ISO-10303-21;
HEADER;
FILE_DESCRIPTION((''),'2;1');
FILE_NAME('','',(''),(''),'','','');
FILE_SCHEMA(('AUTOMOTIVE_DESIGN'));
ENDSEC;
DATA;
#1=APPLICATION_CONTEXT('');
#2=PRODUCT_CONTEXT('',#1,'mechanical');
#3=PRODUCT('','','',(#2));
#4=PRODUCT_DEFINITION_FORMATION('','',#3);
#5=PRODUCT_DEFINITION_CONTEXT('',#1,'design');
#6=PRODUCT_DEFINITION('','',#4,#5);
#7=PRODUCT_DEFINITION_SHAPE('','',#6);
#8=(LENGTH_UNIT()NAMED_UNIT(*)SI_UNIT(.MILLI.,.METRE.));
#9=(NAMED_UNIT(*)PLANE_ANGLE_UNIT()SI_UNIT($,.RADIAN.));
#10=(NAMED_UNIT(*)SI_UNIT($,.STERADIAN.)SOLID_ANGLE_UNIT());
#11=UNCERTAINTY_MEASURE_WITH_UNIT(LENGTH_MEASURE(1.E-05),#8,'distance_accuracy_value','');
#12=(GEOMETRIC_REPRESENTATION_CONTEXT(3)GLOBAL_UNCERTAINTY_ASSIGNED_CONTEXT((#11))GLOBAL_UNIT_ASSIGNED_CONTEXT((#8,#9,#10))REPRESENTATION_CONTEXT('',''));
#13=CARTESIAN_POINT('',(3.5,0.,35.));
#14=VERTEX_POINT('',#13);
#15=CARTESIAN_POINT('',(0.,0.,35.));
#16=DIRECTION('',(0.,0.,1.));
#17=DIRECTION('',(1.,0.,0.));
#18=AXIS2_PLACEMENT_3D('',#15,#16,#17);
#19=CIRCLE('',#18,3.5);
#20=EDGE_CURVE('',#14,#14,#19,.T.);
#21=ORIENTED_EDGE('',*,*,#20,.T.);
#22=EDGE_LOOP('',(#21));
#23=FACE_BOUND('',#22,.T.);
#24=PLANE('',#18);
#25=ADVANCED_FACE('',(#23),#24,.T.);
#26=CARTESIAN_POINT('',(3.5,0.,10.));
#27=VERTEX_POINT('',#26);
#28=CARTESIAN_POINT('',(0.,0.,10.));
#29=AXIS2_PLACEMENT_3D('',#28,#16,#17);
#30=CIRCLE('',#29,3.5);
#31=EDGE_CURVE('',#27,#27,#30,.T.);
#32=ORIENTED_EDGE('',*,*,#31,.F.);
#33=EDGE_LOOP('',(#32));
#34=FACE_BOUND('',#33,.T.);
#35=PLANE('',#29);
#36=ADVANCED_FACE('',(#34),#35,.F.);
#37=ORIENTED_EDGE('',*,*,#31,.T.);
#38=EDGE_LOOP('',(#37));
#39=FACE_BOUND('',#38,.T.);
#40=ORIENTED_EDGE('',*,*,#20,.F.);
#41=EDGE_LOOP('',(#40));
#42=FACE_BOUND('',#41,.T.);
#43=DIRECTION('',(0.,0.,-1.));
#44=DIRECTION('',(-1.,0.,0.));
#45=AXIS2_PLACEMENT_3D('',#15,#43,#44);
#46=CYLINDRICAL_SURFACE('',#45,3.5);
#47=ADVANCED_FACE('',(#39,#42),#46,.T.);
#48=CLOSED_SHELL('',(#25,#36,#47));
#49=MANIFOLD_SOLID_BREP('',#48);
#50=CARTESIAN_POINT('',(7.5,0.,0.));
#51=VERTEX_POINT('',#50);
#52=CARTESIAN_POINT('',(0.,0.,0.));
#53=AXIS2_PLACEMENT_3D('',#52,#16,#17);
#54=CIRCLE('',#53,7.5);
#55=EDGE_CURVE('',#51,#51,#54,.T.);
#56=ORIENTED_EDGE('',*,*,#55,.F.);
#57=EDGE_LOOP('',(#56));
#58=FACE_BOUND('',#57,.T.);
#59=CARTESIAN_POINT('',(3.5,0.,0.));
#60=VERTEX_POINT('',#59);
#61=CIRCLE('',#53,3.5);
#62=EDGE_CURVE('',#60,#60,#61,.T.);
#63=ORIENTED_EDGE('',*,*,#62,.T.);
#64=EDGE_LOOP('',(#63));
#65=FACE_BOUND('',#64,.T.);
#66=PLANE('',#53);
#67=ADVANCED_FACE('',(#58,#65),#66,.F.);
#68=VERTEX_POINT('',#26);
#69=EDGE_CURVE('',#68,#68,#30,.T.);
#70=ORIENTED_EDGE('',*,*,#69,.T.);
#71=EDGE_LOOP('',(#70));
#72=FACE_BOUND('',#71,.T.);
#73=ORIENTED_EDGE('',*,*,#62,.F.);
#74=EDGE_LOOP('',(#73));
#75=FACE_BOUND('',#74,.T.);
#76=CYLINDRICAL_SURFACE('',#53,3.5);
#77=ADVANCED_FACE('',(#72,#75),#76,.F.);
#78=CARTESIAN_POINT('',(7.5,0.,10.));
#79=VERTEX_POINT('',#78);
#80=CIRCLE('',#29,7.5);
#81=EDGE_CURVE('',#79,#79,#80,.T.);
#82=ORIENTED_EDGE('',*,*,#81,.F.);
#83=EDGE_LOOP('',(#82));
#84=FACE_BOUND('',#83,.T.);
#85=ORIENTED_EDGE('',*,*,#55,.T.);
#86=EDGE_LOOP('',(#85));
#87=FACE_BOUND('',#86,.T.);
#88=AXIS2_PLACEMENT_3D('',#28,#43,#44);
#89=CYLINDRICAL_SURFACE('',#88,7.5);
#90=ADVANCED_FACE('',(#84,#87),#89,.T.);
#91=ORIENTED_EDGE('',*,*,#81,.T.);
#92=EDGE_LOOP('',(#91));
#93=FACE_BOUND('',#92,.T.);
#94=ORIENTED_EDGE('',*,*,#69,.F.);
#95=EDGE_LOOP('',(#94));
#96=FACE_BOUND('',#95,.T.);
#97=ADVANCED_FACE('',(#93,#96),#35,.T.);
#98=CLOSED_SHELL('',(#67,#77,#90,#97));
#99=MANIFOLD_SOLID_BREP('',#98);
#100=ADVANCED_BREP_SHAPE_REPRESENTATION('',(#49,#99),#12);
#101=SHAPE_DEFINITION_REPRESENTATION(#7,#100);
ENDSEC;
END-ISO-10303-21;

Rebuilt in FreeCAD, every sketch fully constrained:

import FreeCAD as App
import Part
import Sketcher
from FreeCAD import Vector
Q = App.Units.Quantity

doc = App.newDocument("Part")
params = doc.addObject("Spreadsheet::Sheet", "Params")
for row, (alias, value) in enumerate([
    ("sketch1_diameter", "15 mm"),
    ("pad1_length", "10 mm"),
    ("sketch2_diameter", "7 mm"),
    ("pocket1_length", "10 mm"),
    ("sketch3_diameter", "7 mm"),
    ("pad2_length", "25 mm"),
], start=1):
    params.set(f"A{row}", alias)
    params.set(f"B{row}", "=" + value)
    params.setAlias(f"B{row}", alias)

body = doc.addObject("PartDesign::Body", "Body")

sketch1 = body.newObject("Sketcher::SketchObject", "Sketch")
sketch1.AttachmentSupport = (doc.getObject("XY_Plane"), [""])
sketch1.MapMode = "FlatFace"
sketch1.addGeometry(Part.Circle(Vector(0, 0, 0), Vector(0, 0, 1), 7.5), False)
sketch1.addConstraint(Sketcher.Constraint("Coincident", 0, 3, -1, 1))
sketch1.addConstraint(Sketcher.Constraint("Diameter", 0, Q("15 mm")))
sketch1.setExpression("Constraints[1]", "Params.sketch1_diameter")
pad1 = body.newObject("PartDesign::Pad", "Pad")
pad1.Profile = sketch1
pad1.setExpression("Length", "Params.pad1_length")

sketch2 = body.newObject("Sketcher::SketchObject", "Sketch001")
sketch2.AttachmentSupport = (doc.getObject("XY_Plane"), [""])
sketch2.MapMode = "FlatFace"
sketch2.AttachmentOffset = App.Placement(Vector(0, 0, 10), App.Rotation())
sketch2.addGeometry(Part.Circle(Vector(0, 0, 0), Vector(0, 0, 1), 3.5), False)
sketch2.addConstraint(Sketcher.Constraint("Coincident", 0, 3, -1, 1))
sketch2.addConstraint(Sketcher.Constraint("Diameter", 0, Q("7 mm")))
sketch2.setExpression("Constraints[1]", "Params.sketch2_diameter")
pocket1 = body.newObject("PartDesign::Pocket", "Pocket")
pocket1.Profile = sketch2
pocket1.setExpression("Length", "Params.pocket1_length")
body2 = doc.addObject("PartDesign::Body", "Body001")

sketch3 = body2.newObject("Sketcher::SketchObject", "Sketch002")
sketch3.AttachmentSupport = (doc.getObject("XY_Plane001"), [""])
sketch3.MapMode = "FlatFace"
sketch3.AttachmentOffset = App.Placement(Vector(0, 0, 10), App.Rotation())
sketch3.addGeometry(Part.Circle(Vector(0, 0, 0), Vector(0, 0, 1), 3.5), False)
sketch3.addConstraint(Sketcher.Constraint("Coincident", 0, 3, -1, 1))
sketch3.addConstraint(Sketcher.Constraint("Diameter", 0, Q("7 mm")))
sketch3.setExpression("Constraints[1]", "Params.sketch3_diameter")
pad2 = body2.newObject("PartDesign::Pad", "Pad001")
pad2.Profile = sketch3
pad2.setExpression("Length", "Params.pad2_length")

doc.recompute()
